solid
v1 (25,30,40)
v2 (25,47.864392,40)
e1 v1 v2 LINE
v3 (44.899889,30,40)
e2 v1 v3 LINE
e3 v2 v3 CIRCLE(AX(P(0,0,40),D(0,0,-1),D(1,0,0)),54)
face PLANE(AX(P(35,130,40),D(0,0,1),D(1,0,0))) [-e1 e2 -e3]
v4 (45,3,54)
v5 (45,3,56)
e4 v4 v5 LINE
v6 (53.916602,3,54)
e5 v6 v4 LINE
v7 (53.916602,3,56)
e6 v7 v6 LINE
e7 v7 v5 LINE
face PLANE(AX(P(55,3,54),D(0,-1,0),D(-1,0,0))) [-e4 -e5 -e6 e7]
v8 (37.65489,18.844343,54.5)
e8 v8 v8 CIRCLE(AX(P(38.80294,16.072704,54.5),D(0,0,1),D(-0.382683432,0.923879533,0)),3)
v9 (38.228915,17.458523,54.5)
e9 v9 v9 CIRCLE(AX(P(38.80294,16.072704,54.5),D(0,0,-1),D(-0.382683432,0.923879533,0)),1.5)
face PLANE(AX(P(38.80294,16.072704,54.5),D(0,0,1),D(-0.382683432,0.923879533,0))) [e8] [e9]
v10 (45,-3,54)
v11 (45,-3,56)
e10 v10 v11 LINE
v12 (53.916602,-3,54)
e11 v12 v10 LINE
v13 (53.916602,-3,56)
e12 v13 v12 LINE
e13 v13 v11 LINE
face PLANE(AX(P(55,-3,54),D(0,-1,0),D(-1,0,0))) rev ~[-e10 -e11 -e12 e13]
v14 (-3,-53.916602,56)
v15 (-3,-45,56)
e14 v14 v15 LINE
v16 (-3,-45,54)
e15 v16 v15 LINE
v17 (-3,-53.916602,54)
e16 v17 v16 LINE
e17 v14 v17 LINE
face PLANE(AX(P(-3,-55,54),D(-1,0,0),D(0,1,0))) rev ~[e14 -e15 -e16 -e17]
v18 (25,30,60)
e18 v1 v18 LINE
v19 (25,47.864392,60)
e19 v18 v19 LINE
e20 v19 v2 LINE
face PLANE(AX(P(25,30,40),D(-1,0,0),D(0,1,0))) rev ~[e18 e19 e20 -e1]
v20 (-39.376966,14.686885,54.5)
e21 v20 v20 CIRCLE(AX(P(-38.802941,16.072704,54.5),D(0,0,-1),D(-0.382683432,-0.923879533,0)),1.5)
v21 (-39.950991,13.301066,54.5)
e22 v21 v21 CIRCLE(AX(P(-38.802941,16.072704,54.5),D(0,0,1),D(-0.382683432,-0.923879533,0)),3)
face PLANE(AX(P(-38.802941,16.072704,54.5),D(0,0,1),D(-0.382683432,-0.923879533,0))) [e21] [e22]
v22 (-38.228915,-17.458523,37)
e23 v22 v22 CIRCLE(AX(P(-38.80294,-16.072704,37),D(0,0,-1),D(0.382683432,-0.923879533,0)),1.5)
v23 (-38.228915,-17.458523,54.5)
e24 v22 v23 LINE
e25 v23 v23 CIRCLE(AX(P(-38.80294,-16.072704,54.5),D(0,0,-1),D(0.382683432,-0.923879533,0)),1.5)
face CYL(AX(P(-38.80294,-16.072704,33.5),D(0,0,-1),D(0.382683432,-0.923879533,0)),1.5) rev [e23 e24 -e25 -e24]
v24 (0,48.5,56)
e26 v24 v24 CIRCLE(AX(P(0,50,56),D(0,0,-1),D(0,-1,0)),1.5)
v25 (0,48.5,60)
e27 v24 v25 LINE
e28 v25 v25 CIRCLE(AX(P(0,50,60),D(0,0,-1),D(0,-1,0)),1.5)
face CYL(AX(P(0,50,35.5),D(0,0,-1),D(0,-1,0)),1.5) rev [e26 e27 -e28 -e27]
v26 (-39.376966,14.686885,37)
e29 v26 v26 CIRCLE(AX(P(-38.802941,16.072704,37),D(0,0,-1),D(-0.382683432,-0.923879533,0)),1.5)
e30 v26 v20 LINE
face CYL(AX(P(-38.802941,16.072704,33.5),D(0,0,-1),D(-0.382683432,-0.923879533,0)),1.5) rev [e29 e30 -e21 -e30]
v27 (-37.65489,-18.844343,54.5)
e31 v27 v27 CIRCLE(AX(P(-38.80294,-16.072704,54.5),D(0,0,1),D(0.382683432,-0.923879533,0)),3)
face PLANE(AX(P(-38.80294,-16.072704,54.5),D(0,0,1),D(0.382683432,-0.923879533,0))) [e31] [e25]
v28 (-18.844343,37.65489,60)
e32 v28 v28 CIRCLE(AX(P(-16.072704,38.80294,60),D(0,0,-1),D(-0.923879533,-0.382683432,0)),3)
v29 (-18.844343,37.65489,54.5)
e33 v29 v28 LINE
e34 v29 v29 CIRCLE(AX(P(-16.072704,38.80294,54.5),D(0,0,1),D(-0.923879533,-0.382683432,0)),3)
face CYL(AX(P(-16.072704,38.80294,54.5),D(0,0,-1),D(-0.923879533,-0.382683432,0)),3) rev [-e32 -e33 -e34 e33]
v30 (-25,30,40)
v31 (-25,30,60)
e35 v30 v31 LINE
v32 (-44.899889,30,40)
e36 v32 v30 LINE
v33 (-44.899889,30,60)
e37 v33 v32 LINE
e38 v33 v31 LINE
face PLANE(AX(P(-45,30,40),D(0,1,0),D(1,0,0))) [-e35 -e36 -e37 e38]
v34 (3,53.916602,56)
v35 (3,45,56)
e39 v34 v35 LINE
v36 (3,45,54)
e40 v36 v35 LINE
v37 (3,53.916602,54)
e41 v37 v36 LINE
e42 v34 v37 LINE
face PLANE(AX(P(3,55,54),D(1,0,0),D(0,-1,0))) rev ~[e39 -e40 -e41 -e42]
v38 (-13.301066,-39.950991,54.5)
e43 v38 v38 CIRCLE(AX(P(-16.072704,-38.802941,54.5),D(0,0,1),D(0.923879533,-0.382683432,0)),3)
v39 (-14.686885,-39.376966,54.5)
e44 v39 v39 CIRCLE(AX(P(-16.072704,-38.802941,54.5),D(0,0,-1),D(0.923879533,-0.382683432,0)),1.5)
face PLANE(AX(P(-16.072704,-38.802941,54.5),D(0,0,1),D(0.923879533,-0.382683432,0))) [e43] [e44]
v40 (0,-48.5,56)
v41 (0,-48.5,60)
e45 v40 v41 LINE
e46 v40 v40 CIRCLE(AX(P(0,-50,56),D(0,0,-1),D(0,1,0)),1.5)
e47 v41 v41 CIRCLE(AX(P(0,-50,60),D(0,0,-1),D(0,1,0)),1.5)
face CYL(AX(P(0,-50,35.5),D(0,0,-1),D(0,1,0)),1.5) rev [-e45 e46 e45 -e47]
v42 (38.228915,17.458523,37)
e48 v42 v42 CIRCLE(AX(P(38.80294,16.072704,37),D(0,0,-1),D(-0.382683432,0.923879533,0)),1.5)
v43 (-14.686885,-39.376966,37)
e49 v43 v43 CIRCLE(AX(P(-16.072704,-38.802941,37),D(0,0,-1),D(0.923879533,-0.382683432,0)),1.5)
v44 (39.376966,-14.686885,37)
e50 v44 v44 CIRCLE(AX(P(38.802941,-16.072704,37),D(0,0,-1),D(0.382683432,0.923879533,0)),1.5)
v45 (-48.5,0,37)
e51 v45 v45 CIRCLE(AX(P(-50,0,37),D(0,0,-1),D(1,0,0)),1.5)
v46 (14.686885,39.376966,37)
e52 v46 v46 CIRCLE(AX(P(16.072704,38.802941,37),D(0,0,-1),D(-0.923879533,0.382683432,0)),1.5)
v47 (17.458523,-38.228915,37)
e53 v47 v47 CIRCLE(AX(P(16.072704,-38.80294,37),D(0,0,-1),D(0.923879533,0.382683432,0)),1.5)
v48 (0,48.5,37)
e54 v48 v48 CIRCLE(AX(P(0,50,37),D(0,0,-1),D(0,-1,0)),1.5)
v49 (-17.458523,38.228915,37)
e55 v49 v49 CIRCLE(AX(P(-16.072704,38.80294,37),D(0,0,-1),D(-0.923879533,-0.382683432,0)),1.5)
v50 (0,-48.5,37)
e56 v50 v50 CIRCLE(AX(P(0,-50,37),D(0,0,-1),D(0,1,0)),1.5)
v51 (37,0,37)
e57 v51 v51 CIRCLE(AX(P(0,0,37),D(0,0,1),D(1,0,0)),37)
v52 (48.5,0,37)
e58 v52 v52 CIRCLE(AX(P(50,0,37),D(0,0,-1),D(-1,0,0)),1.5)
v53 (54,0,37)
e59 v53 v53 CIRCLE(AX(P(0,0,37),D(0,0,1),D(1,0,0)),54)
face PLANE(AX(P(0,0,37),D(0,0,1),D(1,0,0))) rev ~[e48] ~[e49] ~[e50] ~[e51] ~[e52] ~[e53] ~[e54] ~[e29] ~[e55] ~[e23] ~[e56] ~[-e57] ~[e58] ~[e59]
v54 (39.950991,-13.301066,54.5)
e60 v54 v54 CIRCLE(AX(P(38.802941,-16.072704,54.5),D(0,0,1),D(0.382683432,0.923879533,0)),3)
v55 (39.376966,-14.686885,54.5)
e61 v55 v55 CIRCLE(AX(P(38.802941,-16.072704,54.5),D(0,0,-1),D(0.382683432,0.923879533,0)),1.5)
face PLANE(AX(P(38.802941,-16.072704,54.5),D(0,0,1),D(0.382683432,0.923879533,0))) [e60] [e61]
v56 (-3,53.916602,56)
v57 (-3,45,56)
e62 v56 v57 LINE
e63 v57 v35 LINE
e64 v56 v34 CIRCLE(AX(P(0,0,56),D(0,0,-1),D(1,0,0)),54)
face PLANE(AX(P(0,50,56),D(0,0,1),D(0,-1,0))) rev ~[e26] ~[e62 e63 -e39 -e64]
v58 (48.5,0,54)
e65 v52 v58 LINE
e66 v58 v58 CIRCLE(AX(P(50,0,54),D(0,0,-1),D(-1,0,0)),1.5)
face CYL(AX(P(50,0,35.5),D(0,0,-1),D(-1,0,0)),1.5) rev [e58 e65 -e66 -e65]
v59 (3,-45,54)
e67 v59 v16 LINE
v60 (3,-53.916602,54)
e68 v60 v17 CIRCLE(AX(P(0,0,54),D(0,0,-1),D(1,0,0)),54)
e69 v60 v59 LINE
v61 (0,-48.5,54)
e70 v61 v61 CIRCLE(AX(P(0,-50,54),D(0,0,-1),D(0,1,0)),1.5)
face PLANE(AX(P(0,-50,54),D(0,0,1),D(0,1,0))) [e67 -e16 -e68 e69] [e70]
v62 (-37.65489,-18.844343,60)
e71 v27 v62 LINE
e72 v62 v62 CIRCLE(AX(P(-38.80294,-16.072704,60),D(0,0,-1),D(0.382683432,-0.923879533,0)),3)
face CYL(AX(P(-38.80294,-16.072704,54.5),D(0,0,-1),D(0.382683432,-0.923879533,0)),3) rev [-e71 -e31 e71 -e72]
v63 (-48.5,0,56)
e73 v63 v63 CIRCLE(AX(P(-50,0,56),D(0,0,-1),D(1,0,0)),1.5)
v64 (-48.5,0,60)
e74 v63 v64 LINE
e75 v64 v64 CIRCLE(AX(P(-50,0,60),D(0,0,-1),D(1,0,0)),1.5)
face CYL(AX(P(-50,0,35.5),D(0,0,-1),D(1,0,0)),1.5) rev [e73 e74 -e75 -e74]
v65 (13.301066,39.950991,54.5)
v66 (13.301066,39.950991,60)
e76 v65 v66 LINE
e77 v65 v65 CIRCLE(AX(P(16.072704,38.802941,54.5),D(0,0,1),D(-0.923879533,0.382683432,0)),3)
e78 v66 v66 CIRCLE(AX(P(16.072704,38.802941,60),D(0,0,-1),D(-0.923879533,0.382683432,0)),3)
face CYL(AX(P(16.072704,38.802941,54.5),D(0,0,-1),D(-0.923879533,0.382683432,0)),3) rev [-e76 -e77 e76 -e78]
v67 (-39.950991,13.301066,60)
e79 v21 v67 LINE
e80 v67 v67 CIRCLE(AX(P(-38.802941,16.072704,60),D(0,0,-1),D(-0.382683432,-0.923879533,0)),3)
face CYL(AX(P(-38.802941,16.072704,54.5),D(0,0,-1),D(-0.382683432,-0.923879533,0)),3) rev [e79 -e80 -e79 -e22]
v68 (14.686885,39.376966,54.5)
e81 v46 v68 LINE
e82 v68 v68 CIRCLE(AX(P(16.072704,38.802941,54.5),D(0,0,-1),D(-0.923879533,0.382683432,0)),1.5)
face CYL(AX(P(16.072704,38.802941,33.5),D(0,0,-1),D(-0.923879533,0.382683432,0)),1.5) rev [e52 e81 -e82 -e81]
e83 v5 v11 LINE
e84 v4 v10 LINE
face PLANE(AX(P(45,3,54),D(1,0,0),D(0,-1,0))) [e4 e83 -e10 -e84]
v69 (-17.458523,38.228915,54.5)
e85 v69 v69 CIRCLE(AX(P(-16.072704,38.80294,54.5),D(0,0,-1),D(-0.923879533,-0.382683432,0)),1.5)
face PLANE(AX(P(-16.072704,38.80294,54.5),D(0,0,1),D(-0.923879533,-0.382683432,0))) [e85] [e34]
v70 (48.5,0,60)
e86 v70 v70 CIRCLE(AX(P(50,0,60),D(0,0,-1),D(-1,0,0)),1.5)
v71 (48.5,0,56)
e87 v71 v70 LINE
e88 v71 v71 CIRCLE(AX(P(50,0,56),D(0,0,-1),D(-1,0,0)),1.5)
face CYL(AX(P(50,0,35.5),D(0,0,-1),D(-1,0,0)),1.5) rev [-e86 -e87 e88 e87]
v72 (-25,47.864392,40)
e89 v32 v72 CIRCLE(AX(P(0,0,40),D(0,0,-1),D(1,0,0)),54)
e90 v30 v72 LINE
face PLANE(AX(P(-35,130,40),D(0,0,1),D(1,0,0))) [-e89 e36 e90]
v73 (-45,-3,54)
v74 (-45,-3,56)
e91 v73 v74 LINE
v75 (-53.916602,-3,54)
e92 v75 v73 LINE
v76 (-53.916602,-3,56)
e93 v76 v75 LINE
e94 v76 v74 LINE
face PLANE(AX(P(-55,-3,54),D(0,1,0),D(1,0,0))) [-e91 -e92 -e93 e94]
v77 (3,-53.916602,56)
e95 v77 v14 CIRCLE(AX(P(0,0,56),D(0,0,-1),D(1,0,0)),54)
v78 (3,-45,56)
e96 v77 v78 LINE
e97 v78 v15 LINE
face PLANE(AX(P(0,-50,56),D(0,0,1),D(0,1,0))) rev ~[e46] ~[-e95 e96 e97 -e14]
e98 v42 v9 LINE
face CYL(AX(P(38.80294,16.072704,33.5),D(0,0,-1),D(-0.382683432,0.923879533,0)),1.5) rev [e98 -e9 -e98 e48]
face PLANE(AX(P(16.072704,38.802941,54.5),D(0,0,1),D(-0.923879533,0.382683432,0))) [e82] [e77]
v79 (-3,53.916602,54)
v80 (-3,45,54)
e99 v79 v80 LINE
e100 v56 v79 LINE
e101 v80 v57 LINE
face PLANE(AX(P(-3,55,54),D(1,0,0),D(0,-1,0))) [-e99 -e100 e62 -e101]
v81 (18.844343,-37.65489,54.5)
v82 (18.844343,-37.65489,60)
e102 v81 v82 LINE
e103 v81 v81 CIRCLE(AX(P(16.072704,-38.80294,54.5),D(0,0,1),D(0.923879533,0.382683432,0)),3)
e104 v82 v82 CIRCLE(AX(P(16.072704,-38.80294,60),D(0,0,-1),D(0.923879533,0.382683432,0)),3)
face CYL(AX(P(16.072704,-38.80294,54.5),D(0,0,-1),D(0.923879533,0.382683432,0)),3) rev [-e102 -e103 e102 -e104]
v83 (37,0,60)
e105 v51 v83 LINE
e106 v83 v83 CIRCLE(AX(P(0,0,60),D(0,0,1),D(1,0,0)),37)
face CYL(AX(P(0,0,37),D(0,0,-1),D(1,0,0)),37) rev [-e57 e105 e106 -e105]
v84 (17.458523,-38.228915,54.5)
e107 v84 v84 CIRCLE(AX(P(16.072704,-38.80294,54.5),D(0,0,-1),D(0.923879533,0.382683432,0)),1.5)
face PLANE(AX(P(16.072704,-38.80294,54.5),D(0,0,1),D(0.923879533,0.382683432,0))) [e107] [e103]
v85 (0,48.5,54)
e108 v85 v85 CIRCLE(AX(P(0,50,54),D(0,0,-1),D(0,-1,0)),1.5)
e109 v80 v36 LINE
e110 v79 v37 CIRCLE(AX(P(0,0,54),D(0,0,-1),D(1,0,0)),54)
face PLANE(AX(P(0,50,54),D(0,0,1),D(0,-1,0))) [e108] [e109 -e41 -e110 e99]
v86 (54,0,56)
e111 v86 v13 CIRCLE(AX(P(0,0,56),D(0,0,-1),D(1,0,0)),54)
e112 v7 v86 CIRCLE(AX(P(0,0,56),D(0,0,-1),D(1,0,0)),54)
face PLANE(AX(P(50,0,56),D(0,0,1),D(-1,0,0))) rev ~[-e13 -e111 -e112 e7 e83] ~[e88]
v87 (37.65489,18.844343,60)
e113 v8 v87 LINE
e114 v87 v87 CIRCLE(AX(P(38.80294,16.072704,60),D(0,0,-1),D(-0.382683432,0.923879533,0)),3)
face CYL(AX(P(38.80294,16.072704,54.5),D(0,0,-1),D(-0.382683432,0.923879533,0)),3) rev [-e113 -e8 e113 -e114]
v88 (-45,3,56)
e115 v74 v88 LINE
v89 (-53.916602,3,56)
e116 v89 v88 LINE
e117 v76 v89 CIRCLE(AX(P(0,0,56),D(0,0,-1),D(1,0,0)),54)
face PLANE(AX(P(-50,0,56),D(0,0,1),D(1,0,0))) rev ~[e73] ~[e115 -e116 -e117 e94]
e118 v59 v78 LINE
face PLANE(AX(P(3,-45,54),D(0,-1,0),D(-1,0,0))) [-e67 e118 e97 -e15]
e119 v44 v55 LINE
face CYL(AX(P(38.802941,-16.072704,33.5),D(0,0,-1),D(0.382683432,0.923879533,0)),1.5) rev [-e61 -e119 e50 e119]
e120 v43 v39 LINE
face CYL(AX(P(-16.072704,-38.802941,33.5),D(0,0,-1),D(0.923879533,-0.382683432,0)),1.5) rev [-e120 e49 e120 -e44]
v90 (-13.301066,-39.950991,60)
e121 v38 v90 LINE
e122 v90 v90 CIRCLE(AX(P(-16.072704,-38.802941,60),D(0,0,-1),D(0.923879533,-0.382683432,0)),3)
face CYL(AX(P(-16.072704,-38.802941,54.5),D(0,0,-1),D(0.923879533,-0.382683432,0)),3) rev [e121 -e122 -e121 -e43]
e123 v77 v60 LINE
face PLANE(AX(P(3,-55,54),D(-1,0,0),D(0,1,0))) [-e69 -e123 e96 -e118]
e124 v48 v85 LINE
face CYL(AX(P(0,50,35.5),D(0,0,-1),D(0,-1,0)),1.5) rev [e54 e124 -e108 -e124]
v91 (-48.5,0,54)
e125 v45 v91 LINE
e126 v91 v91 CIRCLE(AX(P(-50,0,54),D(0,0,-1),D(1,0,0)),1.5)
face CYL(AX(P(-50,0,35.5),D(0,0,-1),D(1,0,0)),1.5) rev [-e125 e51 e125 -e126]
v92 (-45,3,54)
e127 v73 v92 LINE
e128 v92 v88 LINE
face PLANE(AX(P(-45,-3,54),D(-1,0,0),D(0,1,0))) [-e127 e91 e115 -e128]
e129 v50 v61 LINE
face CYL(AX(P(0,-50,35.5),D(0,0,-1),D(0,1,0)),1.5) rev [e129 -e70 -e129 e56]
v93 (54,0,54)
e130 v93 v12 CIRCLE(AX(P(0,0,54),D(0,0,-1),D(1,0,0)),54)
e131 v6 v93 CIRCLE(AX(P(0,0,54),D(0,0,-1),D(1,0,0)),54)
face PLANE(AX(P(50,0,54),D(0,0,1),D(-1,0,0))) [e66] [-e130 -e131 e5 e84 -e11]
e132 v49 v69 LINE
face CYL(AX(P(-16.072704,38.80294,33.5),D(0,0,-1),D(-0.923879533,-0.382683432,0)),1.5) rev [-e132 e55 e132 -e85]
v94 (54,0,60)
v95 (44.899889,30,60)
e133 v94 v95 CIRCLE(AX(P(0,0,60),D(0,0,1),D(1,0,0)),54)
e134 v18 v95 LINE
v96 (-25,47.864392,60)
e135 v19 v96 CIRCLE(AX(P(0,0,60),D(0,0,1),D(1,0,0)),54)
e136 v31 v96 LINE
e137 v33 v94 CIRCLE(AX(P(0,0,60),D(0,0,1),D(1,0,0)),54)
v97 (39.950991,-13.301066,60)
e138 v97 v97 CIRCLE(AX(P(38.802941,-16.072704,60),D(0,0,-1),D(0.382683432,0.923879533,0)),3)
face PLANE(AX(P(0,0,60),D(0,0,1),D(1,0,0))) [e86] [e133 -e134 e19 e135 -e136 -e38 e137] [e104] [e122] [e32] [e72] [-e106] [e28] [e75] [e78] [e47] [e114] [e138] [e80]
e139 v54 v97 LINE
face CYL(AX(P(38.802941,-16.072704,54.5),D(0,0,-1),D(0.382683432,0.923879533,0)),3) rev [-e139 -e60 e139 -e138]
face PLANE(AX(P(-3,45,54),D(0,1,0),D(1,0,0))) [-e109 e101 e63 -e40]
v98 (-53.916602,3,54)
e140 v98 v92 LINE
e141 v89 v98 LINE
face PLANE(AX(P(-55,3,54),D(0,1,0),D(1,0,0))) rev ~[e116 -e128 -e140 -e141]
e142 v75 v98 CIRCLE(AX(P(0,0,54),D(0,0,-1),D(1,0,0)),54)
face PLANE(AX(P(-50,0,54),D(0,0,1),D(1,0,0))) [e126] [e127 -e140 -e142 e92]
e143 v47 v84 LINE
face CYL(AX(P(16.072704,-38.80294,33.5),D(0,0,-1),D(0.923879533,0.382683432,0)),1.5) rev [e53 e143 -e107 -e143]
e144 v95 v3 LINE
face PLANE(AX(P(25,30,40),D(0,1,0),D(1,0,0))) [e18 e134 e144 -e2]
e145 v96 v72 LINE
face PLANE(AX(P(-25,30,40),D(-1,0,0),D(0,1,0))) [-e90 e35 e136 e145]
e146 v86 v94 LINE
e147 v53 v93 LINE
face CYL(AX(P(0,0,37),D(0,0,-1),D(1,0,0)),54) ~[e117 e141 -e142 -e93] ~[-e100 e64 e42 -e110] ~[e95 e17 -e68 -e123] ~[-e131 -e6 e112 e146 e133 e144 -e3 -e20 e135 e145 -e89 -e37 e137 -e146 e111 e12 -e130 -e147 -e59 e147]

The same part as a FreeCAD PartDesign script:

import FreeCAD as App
import Part
import Sketcher

V = App.Vector
Q = App.Units.Quantity

doc = App.newDocument("Part")
body = doc.addObject("PartDesign::Body", "Body")

# Sketch on XY plane
sketch1 = doc.addObject("Sketcher::SketchObject", "Sketch")
body.addObject(sketch1)
sketch1.AttachmentSupport = (doc.XY_Plane, [""])
sketch1.MapMode = "FlatFace"
sketch1.AttachmentOffset = App.Placement(V(0, 0, 54), App.Rotation())
sketch1.addGeometry(Part.LineSegment(V(55, -3, 0), V(55, 3, 0)), False)
sketch1.addGeometry(Part.LineSegment(V(55, 3, 0), V(45, 3, 0)), False)
sketch1.addGeometry(Part.LineSegment(V(45, 3, 0), V(45, -3, 0)), False)
sketch1.addGeometry(Part.LineSegment(V(45, -3, 0), V(55, -3, 0)), False)
sketch1.addConstraint(Sketcher.Constraint("Coincident", 0, 2, 1, 1))
sketch1.addConstraint(Sketcher.Constraint("Coincident", 1, 2, 2, 1))
sketch1.addConstraint(Sketcher.Constraint("Coincident", 2, 2, 3, 1))
sketch1.addConstraint(Sketcher.Constraint("Coincident", 3, 2, 0, 1))
sketch1.addConstraint(Sketcher.Constraint("Vertical", 0))
sketch1.addConstraint(Sketcher.Constraint("Horizontal", 1))
sketch1.addConstraint(Sketcher.Constraint("Vertical", 2))
sketch1.addConstraint(Sketcher.Constraint("Horizontal", 3))
sketch1.addConstraint(Sketcher.Constraint("DistanceX", 1, 2, 1, 1, Q("10 mm")))
sketch1.addConstraint(Sketcher.Constraint("DistanceY", 0, 1, 0, 2, Q("6 mm")))
sketch1.addConstraint(Sketcher.Constraint("DistanceX", -1, 1, 0, 2, Q("55 mm")))
sketch1.addConstraint(Sketcher.Constraint("DistanceY", -1, 1, 0, 2, Q("3 mm")))
pad1 = doc.addObject("PartDesign::Pad", "Pad")
body.addObject(pad1)
pad1.Profile = sketch1
pad1.Length = 2
body2 = doc.addObject("PartDesign::Body", "Body001")

# Sketch on XY plane
sketch2 = doc.addObject("Sketcher::SketchObject", "Sketch001")
body2.addObject(sketch2)
sketch2.AttachmentSupport = (doc.getObject("XY_Plane001"), [""])
sketch2.MapMode = "FlatFace"
sketch2.AttachmentOffset = App.Placement(V(0, 0, 54), App.Rotation())
sketch2.addGeometry(Part.LineSegment(V(-3, -55, 0), V(3, -55, 0)), False)
sketch2.addGeometry(Part.LineSegment(V(3, -55, 0), V(3, -45, 0)), False)
sketch2.addGeometry(Part.LineSegment(V(3, -45, 0), V(-3, -45, 0)), False)
sketch2.addGeometry(Part.LineSegment(V(-3, -45, 0), V(-3, -55, 0)), False)
sketch2.addConstraint(Sketcher.Constraint("Coincident", 0, 2, 1, 1))
sketch2.addConstraint(Sketcher.Constraint("Coincident", 1, 2, 2, 1))
sketch2.addConstraint(Sketcher.Constraint("Coincident", 2, 2, 3, 1))
sketch2.addConstraint(Sketcher.Constraint("Coincident", 3, 2, 0, 1))
sketch2.addConstraint(Sketcher.Constraint("Horizontal", 0))
sketch2.addConstraint(Sketcher.Constraint("Vertical", 1))
sketch2.addConstraint(Sketcher.Constraint("Horizontal", 2))
sketch2.addConstraint(Sketcher.Constraint("Vertical", 3))
sketch2.addConstraint(Sketcher.Constraint("DistanceX", 0, 1, 0, 2, Q("6 mm")))
sketch2.addConstraint(Sketcher.Constraint("DistanceY", 1, 1, 1, 2, Q("10 mm")))
sketch2.addConstraint(Sketcher.Constraint("DistanceX", -1, 1, 0, 2, Q("3 mm")))
sketch2.addConstraint(Sketcher.Constraint("DistanceY", 0, 2, -1, 1, Q("55 mm")))
pad2 = doc.addObject("PartDesign::Pad", "Pad001")
body2.addObject(pad2)
pad2.Profile = sketch2
pad2.Length = 2
body3 = doc.addObject("PartDesign::Body", "Body002")

# Sketch on XY plane
sketch3 = doc.addObject("Sketcher::SketchObject", "Sketch002")
body3.addObject(sketch3)
sketch3.AttachmentSupport = (doc.getObject("XY_Plane002"), [""])
sketch3.MapMode = "FlatFace"
sketch3.AttachmentOffset = App.Placement(V(0, 0, 54), App.Rotation())
sketch3.addGeometry(Part.LineSegment(V(-55, 3, 0), V(-55, -3, 0)), False)
sketch3.addGeometry(Part.LineSegment(V(-55, -3, 0), V(-45, -3, 0)), False)
sketch3.addGeometry(Part.LineSegment(V(-45, -3, 0), V(-45, 3, 0)), False)
sketch3.addGeometry(Part.LineSegment(V(-45, 3, 0), V(-55, 3, 0)), False)
sketch3.addConstraint(Sketcher.Constraint("Coincident", 0, 2, 1, 1))
sketch3.addConstraint(Sketcher.Constraint("Coincident", 1, 2, 2, 1))
sketch3.addConstraint(Sketcher.Constraint("Coincident", 2, 2, 3, 1))
sketch3.addConstraint(Sketcher.Constraint("Coincident", 3, 2, 0, 1))
sketch3.addConstraint(Sketcher.Constraint("Vertical", 0))
sketch3.addConstraint(Sketcher.Constraint("Horizontal", 1))
sketch3.addConstraint(Sketcher.Constraint("Vertical", 2))
sketch3.addConstraint(Sketcher.Constraint("Horizontal", 3))
sketch3.addConstraint(Sketcher.Constraint("DistanceX", 1, 1, 1, 2, Q("10 mm")))
sketch3.addConstraint(Sketcher.Constraint("DistanceY", 0, 2, 0, 1, Q("6 mm")))
sketch3.addConstraint(Sketcher.Constraint("DistanceX", 0, 2, -1, 1, Q("55 mm")))
sketch3.addConstraint(Sketcher.Constraint("DistanceY", 0, 2, -1, 1, Q("3 mm")))
pad3 = doc.addObject("PartDesign::Pad", "Pad002")
body3.addObject(pad3)
pad3.Profile = sketch3
pad3.Length = 2
body4 = doc.addObject("PartDesign::Body", "Body003")
body4.AllowCompound = True

# Sketch on XY plane
sketch4 = doc.addObject("Sketcher::SketchObject", "Sketch003")
body4.addObject(sketch4)
sketch4.AttachmentSupport = (doc.getObject("XY_Plane003"), [""])
sketch4.MapMode = "FlatFace"
sketch4.AttachmentOffset = App.Placement(V(0, 0, 54), App.Rotation())
sketch4.addGeometry(Part.LineSegment(V(3, 55, 0), V(-3, 55, 0)), False)
sketch4.addGeometry(Part.LineSegment(V(-3, 55, 0), V(-3, 45, 0)), False)
sketch4.addGeometry(Part.LineSegment(V(-3, 45, 0), V(3, 45, 0)), False)
sketch4.addGeometry(Part.LineSegment(V(3, 45, 0), V(3, 55, 0)), False)
sketch4.addConstraint(Sketcher.Constraint("Coincident", 0, 2, 1, 1))
sketch4.addConstraint(Sketcher.Constraint("Coincident", 1, 2, 2, 1))
sketch4.addConstraint(Sketcher.Constraint("Coincident", 2, 2, 3, 1))
sketch4.addConstraint(Sketcher.Constraint("Coincident", 3, 2, 0, 1))
sketch4.addConstraint(Sketcher.Constraint("Horizontal", 0))
sketch4.addConstraint(Sketcher.Constraint("Vertical", 1))
sketch4.addConstraint(Sketcher.Constraint("Horizontal", 2))
sketch4.addConstraint(Sketcher.Constraint("Vertical", 3))
sketch4.addConstraint(Sketcher.Constraint("DistanceX", 0, 2, 0, 1, Q("6 mm")))
sketch4.addConstraint(Sketcher.Constraint("DistanceY", 1, 2, 1, 1, Q("10 mm")))
sketch4.addConstraint(Sketcher.Constraint("DistanceX", 0, 2, -1, 1, Q("3 mm")))
sketch4.addConstraint(Sketcher.Constraint("DistanceY", -1, 1, 0, 2, Q("55 mm")))
pad4 = doc.addObject("PartDesign::Pad", "Pad003")
body4.addObject(pad4)
pad4.Profile = sketch4
pad4.Length = 2
doc.recompute()

boolean = doc.addObject("PartDesign::Boolean", "Boolean")
body4.addObject(boolean)
boolean.Type = "Fuse"
boolean.addObjects([body])
doc.recompute()

boolean2 = doc.addObject("PartDesign::Boolean", "Boolean001")
body4.addObject(boolean2)
boolean2.Type = "Fuse"
boolean2.addObjects([body2])
doc.recompute()

boolean3 = doc.addObject("PartDesign::Boolean", "Boolean002")
body4.addObject(boolean3)
boolean3.Type = "Fuse"
boolean3.addObjects([body3])
body5 = doc.addObject("PartDesign::Body", "Body004")

# Sketch on XY plane
sketch5 = doc.addObject("Sketcher::SketchObject", "Sketch004")
body5.addObject(sketch5)
sketch5.AttachmentSupport = (doc.getObject("XY_Plane004"), [""])
sketch5.MapMode = "FlatFace"
sketch5.AttachmentOffset = App.Placement(V(0, 0, 35.5), App.Rotation())
sketch5.addGeometry(Part.Circle(V(50, 0, 0), V(0, 0, 1), 1.5), False)
sketch5.addConstraint(Sketcher.Constraint("PointOnObject", 0, 3, -1))
sketch5.addConstraint(Sketcher.Constraint("Diameter", 0, Q("3 mm")))
sketch5.addConstraint(Sketcher.Constraint("DistanceX", -1, 1, 0, 3, Q("50 mm")))
pad5 = doc.addObject("PartDesign::Pad", "Pad004")
body5.addObject(pad5)
pad5.Profile = sketch5
pad5.Length = 30
body6 = doc.addObject("PartDesign::Body", "Body005")

# Sketch on XY plane
sketch6 = doc.addObject("Sketcher::SketchObject", "Sketch005")
body6.addObject(sketch6)
sketch6.AttachmentSupport = (doc.getObject("XY_Plane005"), [""])
sketch6.MapMode = "FlatFace"
sketch6.AttachmentOffset = App.Placement(V(0, 0, 35.5), App.Rotation())
sketch6.addGeometry(Part.Circle(V(0, -50, 0), V(0, 0, 1), 1.5), False)
sketch6.addConstraint(Sketcher.Constraint("PointOnObject", 0, 3, -2))
sketch6.addConstraint(Sketcher.Constraint("Diameter", 0, Q("3 mm")))
sketch6.addConstraint(Sketcher.Constraint("DistanceY", 0, 3, -1, 1, Q("50 mm")))
pad6 = doc.addObject("PartDesign::Pad", "Pad005")
body6.addObject(pad6)
pad6.Profile = sketch6
pad6.Length = 30
body7 = doc.addObject("PartDesign::Body", "Body006")

# Sketch on XY plane
sketch7 = doc.addObject("Sketcher::SketchObject", "Sketch006")
body7.addObject(sketch7)
sketch7.AttachmentSupport = (doc.getObject("XY_Plane006"), [""])
sketch7.MapMode = "FlatFace"
sketch7.AttachmentOffset = App.Placement(V(0, 0, 35.5), App.Rotation())
sketch7.addGeometry(Part.Circle(V(-50, 0, 0), V(0, 0, 1), 1.5), False)
sketch7.addConstraint(Sketcher.Constraint("PointOnObject", 0, 3, -1))
sketch7.addConstraint(Sketcher.Constraint("Diameter", 0, Q("3 mm")))
sketch7.addConstraint(Sketcher.Constraint("DistanceX", 0, 3, -1, 1, Q("50 mm")))
pad7 = doc.addObject("PartDesign::Pad", "Pad006")
body7.addObject(pad7)
pad7.Profile = sketch7
pad7.Length = 30
body8 = doc.addObject("PartDesign::Body", "Body007")
body8.AllowCompound = True

# Sketch on XY plane
sketch8 = doc.addObject("Sketcher::SketchObject", "Sketch007")
body8.addObject(sketch8)
sketch8.AttachmentSupport = (doc.getObject("XY_Plane007"), [""])
sketch8.MapMode = "FlatFace"
sketch8.AttachmentOffset = App.Placement(V(0, 0, 35.5), App.Rotation())
sketch8.addGeometry(Part.Circle(V(0, 50, 0), V(0, 0, 1), 1.5), False)
sketch8.addConstraint(Sketcher.Constraint("PointOnObject", 0, 3, -2))
sketch8.addConstraint(Sketcher.Constraint("Diameter", 0, Q("3 mm")))
sketch8.addConstraint(Sketcher.Constraint("DistanceY", -1, 1, 0, 3, Q("50 mm")))
pad8 = doc.addObject("PartDesign::Pad", "Pad007")
body8.addObject(pad8)
pad8.Profile = sketch8
pad8.Length = 30
doc.recompute()

boolean4 = doc.addObject("PartDesign::Boolean", "Boolean003")
body8.addObject(boolean4)
boolean4.Type = "Fuse"
boolean4.addObjects([body5])
doc.recompute()

boolean5 = doc.addObject("PartDesign::Boolean", "Boolean004")
body8.addObject(boolean5)
boolean5.Type = "Fuse"
boolean5.addObjects([body6])
doc.recompute()

boolean6 = doc.addObject("PartDesign::Boolean", "Boolean005")
body8.addObject(boolean6)
boolean6.Type = "Fuse"
boolean6.addObjects([body7])
body9 = doc.addObject("PartDesign::Body", "Body008")

# Sketch on XY plane
sketch9 = doc.addObject("Sketcher::SketchObject", "Sketch008")
body9.addObject(sketch9)
sketch9.AttachmentSupport = (doc.getObject("XY_Plane008"), [""])
sketch9.MapMode = "FlatFace"
sketch9.addGeometry(Part.Circle(V(0, 0, 0), V(0, 0, 1), 3), False)
sketch9.addConstraint(Sketcher.Constraint("Coincident", 0, 3, -1, 1))
sketch9.addConstraint(Sketcher.Constraint("Diameter", 0, Q("6 mm")))
pad9 = doc.addObject("PartDesign::Pad", "Pad008")
body9.addObject(pad9)
pad9.Profile = sketch9
pad9.Length = 6
body10 = doc.addObject("PartDesign::Body", "Body009")
doc.recompute()

body9.Placement = App.Placement(V(29.698485, -29.698485, 33.5), App.Rotation(V(0, 0, 1), 45))
boolean7 = doc.addObject("PartDesign::Boolean", "Boolean006")
body10.addObject(boolean7)
boolean7.Type = "Fuse"
boolean7.addObjects([body9])
body11 = doc.addObject("PartDesign::Body", "Body010")

# Sketch on XY plane
sketch10 = doc.addObject("Sketcher::SketchObject", "Sketch009")
body11.addObject(sketch10)
sketch10.AttachmentSupport = (doc.getObject("XY_Plane010"), [""])
sketch10.MapMode = "FlatFace"
sketch10.AttachmentOffset = App.Placement(V(0, 0, 33.5), App.Rotation())
sketch10.addGeometry(Part.Circle(V(42, 0, 0), V(0, 0, 1), 3), False)
sketch10.addConstraint(Sketcher.Constraint("PointOnObject", 0, 3, -1))
sketch10.addConstraint(Sketcher.Constraint("Diameter", 0, Q("6 mm")))
sketch10.addConstraint(Sketcher.Constraint("DistanceX", -1, 1, 0, 3, Q("42 mm")))
pad10 = doc.addObject("PartDesign::Pad", "Pad009")
body11.addObject(pad10)
pad10.Profile = sketch10
pad10.Length = 6
body12 = doc.addObject("PartDesign::Body", "Body011")

# Sketch on XY plane
sketch11 = doc.addObject("Sketcher::SketchObject", "Sketch010")
body12.addObject(sketch11)
sketch11.AttachmentSupport = (doc.getObject("XY_Plane011"), [""])
sketch11.MapMode = "FlatFace"
sketch11.addGeometry(Part.Circle(V(0, 0, 0), V(0, 0, 1), 3), False)
sketch11.addConstraint(Sketcher.Constraint("Coincident", 0, 3, -1, 1))
sketch11.addConstraint(Sketcher.Constraint("Diameter", 0, Q("6 mm")))
pad11 = doc.addObject("PartDesign::Pad", "Pad010")
body12.addObject(pad11)
pad11.Profile = sketch11
pad11.Length = 6
body13 = doc.addObject("PartDesign::Body", "Body012")
doc.recompute()

body12.Placement = App.Placement(V(29.698485, 29.698485, 33.5), App.Rotation(V(0, 0, 1), 135))
boolean8 = doc.addObject("PartDesign::Boolean", "Boolean007")
body13.addObject(boolean8)
boolean8.Type = "Fuse"
boolean8.addObjects([body12])
body14 = doc.addObject("PartDesign::Body", "Body013")

# Sketch on XY plane
sketch12 = doc.addObject("Sketcher::SketchObject", "Sketch011")
body14.addObject(sketch12)
sketch12.AttachmentSupport = (doc.getObject("XY_Plane013"), [""])
sketch12.MapMode = "FlatFace"
sketch12.AttachmentOffset = App.Placement(V(0, 0, 33.5), App.Rotation())
sketch12.addGeometry(Part.Circle(V(0, 42, 0), V(0, 0, 1), 3), False)
sketch12.addConstraint(Sketcher.Constraint("PointOnObject", 0, 3, -2))
sketch12.addConstraint(Sketcher.Constraint("Diameter", 0, Q("6 mm")))
sketch12.addConstraint(Sketcher.Constraint("DistanceY", -1, 1, 0, 3, Q("42 mm")))
pad12 = doc.addObject("PartDesign::Pad", "Pad011")
body14.addObject(pad12)
pad12.Profile = sketch12
pad12.Length = 6
body15 = doc.addObject("PartDesign::Body", "Body014")

# Sketch on XY plane
sketch13 = doc.addObject("Sketcher::SketchObject", "Sketch012")
body15.addObject(sketch13)
sketch13.AttachmentSupport = (doc.getObject("XY_Plane014"), [""])
sketch13.MapMode = "FlatFace"
sketch13.addGeometry(Part.Circle(V(0, 0, 0), V(0, 0, 1), 3), False)
sketch13.addConstraint(Sketcher.Constraint("Coincident", 0, 3, -1, 1))
sketch13.addConstraint(Sketcher.Constraint("Diameter", 0, Q("6 mm")))
pad13 = doc.addObject("PartDesign::Pad", "Pad012")
body15.addObject(pad13)
pad13.Profile = sketch13
pad13.Length = 6
body16 = doc.addObject("PartDesign::Body", "Body015")
doc.recompute()

body15.Placement = App.Placement(V(-29.698485, 29.698485, 33.5), App.Rotation(V(0, 0, 1), 225))
boolean9 = doc.addObject("PartDesign::Boolean", "Boolean008")
body16.addObject(boolean9)
boolean9.Type = "Fuse"
boolean9.addObjects([body15])
body17 = doc.addObject("PartDesign::Body", "Body016")

# Sketch on XY plane
sketch14 = doc.addObject("Sketcher::SketchObject", "Sketch013")
body17.addObject(sketch14)
sketch14.AttachmentSupport = (doc.getObject("XY_Plane016"), [""])
sketch14.MapMode = "FlatFace"
sketch14.AttachmentOffset = App.Placement(V(0, 0, 33.5), App.Rotation())
sketch14.addGeometry(Part.Circle(V(-42, 0, 0), V(0, 0, 1), 3), False)
sketch14.addConstraint(Sketcher.Constraint("PointOnObject", 0, 3, -1))
sketch14.addConstraint(Sketcher.Constraint("Diameter", 0, Q("6 mm")))
sketch14.addConstraint(Sketcher.Constraint("DistanceX", 0, 3, -1, 1, Q("42 mm")))
pad14 = doc.addObject("PartDesign::Pad", "Pad013")
body17.addObject(pad14)
pad14.Profile = sketch14
pad14.Length = 6
body18 = doc.addObject("PartDesign::Body", "Body017")

# Sketch on XY plane
sketch15 = doc.addObject("Sketcher::SketchObject", "Sketch014")
body18.addObject(sketch15)
sketch15.AttachmentSupport = (doc.getObject("XY_Plane017"), [""])
sketch15.MapMode = "FlatFace"
sketch15.addGeometry(Part.Circle(V(0, 0, 0), V(0, 0, 1), 3), False)
sketch15.addConstraint(Sketcher.Constraint("Coincident", 0, 3, -1, 1))
sketch15.addConstraint(Sketcher.Constraint("Diameter", 0, Q("6 mm")))
pad15 = doc.addObject("PartDesign::Pad", "Pad014")
body18.addObject(pad15)
pad15.Profile = sketch15
pad15.Length = 6
body19 = doc.addObject("PartDesign::Body", "Body018")
doc.recompute()

body18.Placement = App.Placement(V(-29.698485, -29.698485, 33.5), App.Rotation(V(0, 0, -1), 45))
boolean10 = doc.addObject("PartDesign::Boolean", "Boolean009")
body19.addObject(boolean10)
boolean10.Type = "Fuse"
boolean10.addObjects([body18])
body20 = doc.addObject("PartDesign::Body", "Body019")
body20.AllowCompound = True

# Sketch on XY plane
sketch16 = doc.addObject("Sketcher::SketchObject", "Sketch015")
body20.addObject(sketch16)
sketch16.AttachmentSupport = (doc.getObject("XY_Plane019"), [""])
sketch16.MapMode = "FlatFace"
sketch16.AttachmentOffset = App.Placement(V(0, 0, 33.5), App.Rotation())
sketch16.addGeometry(Part.Circle(V(0, -42, 0), V(0, 0, 1), 3), False)
sketch16.addConstraint(Sketcher.Constraint("PointOnObject", 0, 3, -2))
sketch16.addConstraint(Sketcher.Constraint("Diameter", 0, Q("6 mm")))
sketch16.addConstraint(Sketcher.Constraint("DistanceY", 0, 3, -1, 1, Q("42 mm")))
pad16 = doc.addObject("PartDesign::Pad", "Pad015")
body20.addObject(pad16)
pad16.Profile = sketch16
pad16.Length = 6
doc.recompute()

boolean11 = doc.addObject("PartDesign::Boolean", "Boolean010")
body20.addObject(boolean11)
boolean11.Type = "Fuse"
boolean11.addObjects([body10])
doc.recompute()

boolean12 = doc.addObject("PartDesign::Boolean", "Boolean011")
body20.addObject(boolean12)
boolean12.Type = "Fuse"
boolean12.addObjects([body11])
doc.recompute()

boolean13 = doc.addObject("PartDesign::Boolean", "Boolean012")
body20.addObject(boolean13)
boolean13.Type = "Fuse"
boolean13.addObjects([body13])
doc.recompute()

boolean14 = doc.addObject("PartDesign::Boolean", "Boolean013")
body20.addObject(boolean14)
boolean14.Type = "Fuse"
boolean14.addObjects([body14])
doc.recompute()

boolean15 = doc.addObject("PartDesign::Boolean", "Boolean014")
body20.addObject(boolean15)
boolean15.Type = "Fuse"
boolean15.addObjects([body16])
doc.recompute()

boolean16 = doc.addObject("PartDesign::Boolean", "Boolean015")
body20.addObject(boolean16)
boolean16.Type = "Fuse"
boolean16.addObjects([body17])
doc.recompute()

boolean17 = doc.addObject("PartDesign::Boolean", "Boolean016")
body20.addObject(boolean17)
boolean17.Type = "Fuse"
boolean17.addObjects([body19])
body21 = doc.addObject("PartDesign::Body", "Body020")
body21.AllowCompound = True
doc.recompute()

body20.Placement = App.Placement(V(0, 0, 21), App.Rotation(V(0, 0, 1), 22.5))
boolean18 = doc.addObject("PartDesign::Boolean", "Boolean017")
body21.addObject(boolean18)
boolean18.Type = "Fuse"
boolean18.addObjects([body20])
body22 = doc.addObject("PartDesign::Body", "Body021")

# Sketch on XY plane
sketch17 = doc.addObject("Sketcher::SketchObject", "Sketch016")
body22.addObject(sketch17)
sketch17.AttachmentSupport = (doc.getObject("XY_Plane021"), [""])
sketch17.MapMode = "FlatFace"
sketch17.addGeometry(Part.Circle(V(0, 0, 0), V(0, 0, 1), 1.5), False)
sketch17.addConstraint(Sketcher.Constraint("Coincident", 0, 3, -1, 1))
sketch17.addConstraint(Sketcher.Constraint("Diameter", 0, Q("3 mm")))
pad17 = doc.addObject("PartDesign::Pad", "Pad016")
body22.addObject(pad17)
pad17.Profile = sketch17
pad17.Length = 40
body23 = doc.addObject("PartDesign::Body", "Body022")
doc.recompute()

body22.Placement = App.Placement(V(29.698485, -29.698485, 33.5), App.Rotation(V(0, 0, 1), 45))
boolean19 = doc.addObject("PartDesign::Boolean", "Boolean018")
body23.addObject(boolean19)
boolean19.Type = "Fuse"
boolean19.addObjects([body22])
body24 = doc.addObject("PartDesign::Body", "Body023")

# Sketch on XY plane
sketch18 = doc.addObject("Sketcher::SketchObject", "Sketch017")
body24.addObject(sketch18)
sketch18.AttachmentSupport = (doc.getObject("XY_Plane023"), [""])
sketch18.MapMode = "FlatFace"
sketch18.AttachmentOffset = App.Placement(V(0, 0, 33.5), App.Rotation())
sketch18.addGeometry(Part.Circle(V(42, 0, 0), V(0, 0, 1), 1.5), False)
sketch18.addConstraint(Sketcher.Constraint("PointOnObject", 0, 3, -1))
sketch18.addConstraint(Sketcher.Constraint("Diameter", 0, Q("3 mm")))
sketch18.addConstraint(Sketcher.Constraint("DistanceX", -1, 1, 0, 3, Q("42 mm")))
pad18 = doc.addObject("PartDesign::Pad", "Pad017")
body24.addObject(pad18)
pad18.Profile = sketch18
pad18.Length = 40
body25 = doc.addObject("PartDesign::Body", "Body024")

# Sketch on XY plane
sketch19 = doc.addObject("Sketcher::SketchObject", "Sketch018")
body25.addObject(sketch19)
sketch19.AttachmentSupport = (doc.getObject("XY_Plane024"), [""])
sketch19.MapMode = "FlatFace"
sketch19.addGeometry(Part.Circle(V(0, 0, 0), V(0, 0, 1), 1.5), False)
sketch19.addConstraint(Sketcher.Constraint("Coincident", 0, 3, -1, 1))
sketch19.addConstraint(Sketcher.Constraint("Diameter", 0, Q("3 mm")))
pad19 = doc.addObject("PartDesign::Pad", "Pad018")
body25.addObject(pad19)
pad19.Profile = sketch19
pad19.Length = 40
body26 = doc.addObject("PartDesign::Body", "Body025")
doc.recompute()

body25.Placement = App.Placement(V(29.698485, 29.698485, 33.5), App.Rotation(V(0, 0, 1), 135))
boolean20 = doc.addObject("PartDesign::Boolean", "Boolean019")
body26.addObject(boolean20)
boolean20.Type = "Fuse"
boolean20.addObjects([body25])
body27 = doc.addObject("PartDesign::Body", "Body026")

# Sketch on XY plane
sketch20 = doc.addObject("Sketcher::SketchObject", "Sketch019")
body27.addObject(sketch20)
sketch20.AttachmentSupport = (doc.getObject("XY_Plane026"), [""])
sketch20.MapMode = "FlatFace"
sketch20.AttachmentOffset = App.Placement(V(0, 0, 33.5), App.Rotation())
sketch20.addGeometry(Part.Circle(V(0, 42, 0), V(0, 0, 1), 1.5), False)
sketch20.addConstraint(Sketcher.Constraint("PointOnObject", 0, 3, -2))
sketch20.addConstraint(Sketcher.Constraint("Diameter", 0, Q("3 mm")))
sketch20.addConstraint(Sketcher.Constraint("DistanceY", -1, 1, 0, 3, Q("42 mm")))
pad20 = doc.addObject("PartDesign::Pad", "Pad019")
body27.addObject(pad20)
pad20.Profile = sketch20
pad20.Length = 40
body28 = doc.addObject("PartDesign::Body", "Body027")

# Sketch on XY plane
sketch21 = doc.addObject("Sketcher::SketchObject", "Sketch020")
body28.addObject(sketch21)
sketch21.AttachmentSupport = (doc.getObject("XY_Plane027"), [""])
sketch21.MapMode = "FlatFace"
sketch21.addGeometry(Part.Circle(V(0, 0, 0), V(0, 0, 1), 1.5), False)
sketch21.addConstraint(Sketcher.Constraint("Coincident", 0, 3, -1, 1))
sketch21.addConstraint(Sketcher.Constraint("Diameter", 0, Q("3 mm")))
pad21 = doc.addObject("PartDesign::Pad", "Pad020")
body28.addObject(pad21)
pad21.Profile = sketch21
pad21.Length = 40
body29 = doc.addObject("PartDesign::Body", "Body028")
doc.recompute()

body28.Placement = App.Placement(V(-29.698485, 29.698485, 33.5), App.Rotation(V(0, 0, 1), 225))
boolean21 = doc.addObject("PartDesign::Boolean", "Boolean020")
body29.addObject(boolean21)
boolean21.Type = "Fuse"
boolean21.addObjects([body28])
body30 = doc.addObject("PartDesign::Body", "Body029")

# Sketch on XY plane
sketch22 = doc.addObject("Sketcher::SketchObject", "Sketch021")
body30.addObject(sketch22)
sketch22.AttachmentSupport = (doc.getObject("XY_Plane029"), [""])
sketch22.MapMode = "FlatFace"
sketch22.AttachmentOffset = App.Placement(V(0, 0, 33.5), App.Rotation())
sketch22.addGeometry(Part.Circle(V(-42, 0, 0), V(0, 0, 1), 1.5), False)
sketch22.addConstraint(Sketcher.Constraint("PointOnObject", 0, 3, -1))
sketch22.addConstraint(Sketcher.Constraint("Diameter", 0, Q("3 mm")))
sketch22.addConstraint(Sketcher.Constraint("DistanceX", 0, 3, -1, 1, Q("42 mm")))
pad22 = doc.addObject("PartDesign::Pad", "Pad021")
body30.addObject(pad22)
pad22.Profile = sketch22
pad22.Length = 40
body31 = doc.addObject("PartDesign::Body", "Body030")

# Sketch on XY plane
sketch23 = doc.addObject("Sketcher::SketchObject", "Sketch022")
body31.addObject(sketch23)
sketch23.AttachmentSupport = (doc.getObject("XY_Plane030"), [""])
sketch23.MapMode = "FlatFace"
sketch23.addGeometry(Part.Circle(V(0, 0, 0), V(0, 0, 1), 1.5), False)
sketch23.addConstraint(Sketcher.Constraint("Coincident", 0, 3, -1, 1))
sketch23.addConstraint(Sketcher.Constraint("Diameter", 0, Q("3 mm")))
pad23 = doc.addObject("PartDesign::Pad", "Pad022")
body31.addObject(pad23)
pad23.Profile = sketch23
pad23.Length = 40
body32 = doc.addObject("PartDesign::Body", "Body031")
doc.recompute()

body31.Placement = App.Placement(V(-29.698485, -29.698485, 33.5), App.Rotation(V(0, 0, -1), 45))
boolean22 = doc.addObject("PartDesign::Boolean", "Boolean021")
body32.addObject(boolean22)
boolean22.Type = "Fuse"
boolean22.addObjects([body31])
body33 = doc.addObject("PartDesign::Body", "Body032")
body33.AllowCompound = True

# Sketch on XY plane
sketch24 = doc.addObject("Sketcher::SketchObject", "Sketch023")
body33.addObject(sketch24)
sketch24.AttachmentSupport = (doc.getObject("XY_Plane032"), [""])
sketch24.MapMode = "FlatFace"
sketch24.AttachmentOffset = App.Placement(V(0, 0, 33.5), App.Rotation())
sketch24.addGeometry(Part.Circle(V(0, -42, 0), V(0, 0, 1), 1.5), False)
sketch24.addConstraint(Sketcher.Constraint("PointOnObject", 0, 3, -2))
sketch24.addConstraint(Sketcher.Constraint("Diameter", 0, Q("3 mm")))
sketch24.addConstraint(Sketcher.Constraint("DistanceY", 0, 3, -1, 1, Q("42 mm")))
pad24 = doc.addObject("PartDesign::Pad", "Pad023")
body33.addObject(pad24)
pad24.Profile = sketch24
pad24.Length = 40
doc.recompute()

boolean23 = doc.addObject("PartDesign::Boolean", "Boolean022")
body33.addObject(boolean23)
boolean23.Type = "Fuse"
boolean23.addObjects([body23])
doc.recompute()

boolean24 = doc.addObject("PartDesign::Boolean", "Boolean023")
body33.addObject(boolean24)
boolean24.Type = "Fuse"
boolean24.addObjects([body24])
doc.recompute()

boolean25 = doc.addObject("PartDesign::Boolean", "Boolean024")
body33.addObject(boolean25)
boolean25.Type = "Fuse"
boolean25.addObjects([body26])
doc.recompute()

boolean26 = doc.addObject("PartDesign::Boolean", "Boolean025")
body33.addObject(boolean26)
boolean26.Type = "Fuse"
boolean26.addObjects([body27])
doc.recompute()

boolean27 = doc.addObject("PartDesign::Boolean", "Boolean026")
body33.addObject(boolean27)
boolean27.Type = "Fuse"
boolean27.addObjects([body29])
doc.recompute()

boolean28 = doc.addObject("PartDesign::Boolean", "Boolean027")
body33.addObject(boolean28)
boolean28.Type = "Fuse"
boolean28.addObjects([body30])
doc.recompute()

boolean29 = doc.addObject("PartDesign::Boolean", "Boolean028")
body33.addObject(boolean29)
boolean29.Type = "Fuse"
boolean29.addObjects([body32])
body34 = doc.addObject("PartDesign::Body", "Body033")
body34.AllowCompound = True
doc.recompute()

body33.Placement = App.Placement(V(0, 0, 0), App.Rotation(V(0, 0, 1), 22.5))
boolean30 = doc.addObject("PartDesign::Boolean", "Boolean029")
body34.addObject(boolean30)
boolean30.Type = "Fuse"
boolean30.addObjects([body33])
body35 = doc.addObject("PartDesign::Body", "Body034")

# Sketch on XY plane
sketch25 = doc.addObject("Sketcher::SketchObject", "Sketch024")
body35.addObject(sketch25)
sketch25.AttachmentSupport = (doc.getObject("XY_Plane034"), [""])
sketch25.MapMode = "FlatFace"
sketch25.AttachmentOffset = App.Placement(V(0, 0, 8), App.Rotation())
sketch25.addGeometry(Part.LineSegment(V(-45, 228, 0), V(-45, 28, 0)), False)
sketch25.addGeometry(Part.LineSegment(V(-45, 28, 0), V(-25, 28, 0)), False)
sketch25.addGeometry(Part.LineSegment(V(-25, 28, 0), V(-25, 228, 0)), False)
sketch25.addGeometry(Part.LineSegment(V(-25, 228, 0), V(-45, 228, 0)), False)
sketch25.addConstraint(Sketcher.Constraint("Coincident", 0, 2, 1, 1))
sketch25.addConstraint(Sketcher.Constraint("Coincident", 1, 2, 2, 1))
sketch25.addConstraint(Sketcher.Constraint("Coincident", 2, 2, 3, 1))
sketch25.addConstraint(Sketcher.Constraint("Coincident", 3, 2, 0, 1))
sketch25.addConstraint(Sketcher.Constraint("Vertical", 0))
sketch25.addConstraint(Sketcher.Constraint("Horizontal", 1))
sketch25.addConstraint(Sketcher.Constraint("Vertical", 2))
sketch25.addConstraint(Sketcher.Constraint("Horizontal", 3))
sketch25.addConstraint(Sketcher.Constraint("DistanceX", 1, 1, 1, 2, Q("20 mm")))
sketch25.addConstraint(Sketcher.Constraint("DistanceY", 0, 2, 0, 1, Q("200 mm")))
sketch25.addConstraint(Sketcher.Constraint("DistanceX", 0, 2, -1, 1, Q("45 mm")))
sketch25.addConstraint(Sketcher.Constraint("DistanceY", -1, 1, 0, 2, Q("28 mm")))
pad25 = doc.addObject("PartDesign::Pad", "Pad024")
body35.addObject(pad25)
pad25.Profile = sketch25
pad25.Length = 20
body36 = doc.addObject("PartDesign::Body", "Body035")
body36.AllowCompound = True

# Sketch on XY plane
sketch26 = doc.addObject("Sketcher::SketchObject", "Sketch025")
body36.addObject(sketch26)
sketch26.AttachmentSupport = (doc.getObject("XY_Plane035"), [""])
sketch26.MapMode = "FlatFace"
sketch26.AttachmentOffset = App.Placement(V(0, 0, 8), App.Rotation())
sketch26.addGeometry(Part.LineSegment(V(25, 228, 0), V(25, 28, 0)), False)
sketch26.addGeometry(Part.LineSegment(V(25, 28, 0), V(45, 28, 0)), False)
sketch26.addGeometry(Part.LineSegment(V(45, 28, 0), V(45, 228, 0)), False)
sketch26.addGeometry(Part.LineSegment(V(45, 228, 0), V(25, 228, 0)), False)
sketch26.addConstraint(Sketcher.Constraint("Coincident", 0, 2, 1, 1))
sketch26.addConstraint(Sketcher.Constraint("Coincident", 1, 2, 2, 1))
sketch26.addConstraint(Sketcher.Constraint("Coincident", 2, 2, 3, 1))
sketch26.addConstraint(Sketcher.Constraint("Coincident", 3, 2, 0, 1))
sketch26.addConstraint(Sketcher.Constraint("Vertical", 0))
sketch26.addConstraint(Sketcher.Constraint("Horizontal", 1))
sketch26.addConstraint(Sketcher.Constraint("Vertical", 2))
sketch26.addConstraint(Sketcher.Constraint("Horizontal", 3))
sketch26.addConstraint(Sketcher.Constraint("DistanceX", 1, 1, 1, 2, Q("20 mm")))
sketch26.addConstraint(Sketcher.Constraint("DistanceY", 0, 2, 0, 1, Q("200 mm")))
sketch26.addConstraint(Sketcher.Constraint("DistanceX", -1, 1, 0, 2, Q("25 mm")))
sketch26.addConstraint(Sketcher.Constraint("DistanceY", -1, 1, 0, 2, Q("28 mm")))
pad26 = doc.addObject("PartDesign::Pad", "Pad025")
body36.addObject(pad26)
pad26.Profile = sketch26
pad26.Length = 20
doc.recompute()

boolean31 = doc.addObject("PartDesign::Boolean", "Boolean030")
body36.addObject(boolean31)
boolean31.Type = "Fuse"
boolean31.addObjects([body35])
body37 = doc.addObject("PartDesign::Body", "Body036")
body37.AllowCompound = True
doc.recompute()

body36.Placement = App.Placement(V(0, 2, 32), App.Rotation(V(0, 0, 1), 0))
boolean32 = doc.addObject("PartDesign::Boolean", "Boolean031")
body37.addObject(boolean32)
boolean32.Type = "Fuse"
boolean32.addObjects([body36])
body38 = doc.addObject("PartDesign::Body", "Body037")

# Sketch on XY plane
sketch27 = doc.addObject("Sketcher::SketchObject", "Sketch026")
body38.addObject(sketch27)
sketch27.AttachmentSupport = (doc.getObject("XY_Plane037"), [""])
sketch27.MapMode = "FlatFace"
sketch27.AttachmentOffset = App.Placement(V(0, 0, 37), App.Rotation())
sketch27.addGeometry(Part.Circle(V(0, 0, 0), V(0, 0, 1), 54), False)
sketch27.addGeometry(Part.Circle(V(0, 0, 0), V(0, 0, 1), 37), False)
sketch27.addConstraint(Sketcher.Constraint("Coincident", 0, 3, -1, 1))
sketch27.addConstraint(Sketcher.Constraint("Coincident", 1, 3, -1, 1))
sketch27.addConstraint(Sketcher.Constraint("Diameter", 0, Q("108 mm")))
sketch27.addConstraint(Sketcher.Constraint("Diameter", 1, Q("74 mm")))
pad27 = doc.addObject("PartDesign::Pad", "Pad026")
body38.addObject(pad27)
pad27.Profile = sketch27
pad27.Length = 23
doc.recompute()

boolean33 = doc.addObject("PartDesign::Boolean", "Boolean032")
body38.addObject(boolean33)
boolean33.Type = "Cut"
boolean33.addObjects([body37])
doc.recompute()

boolean34 = doc.addObject("PartDesign::Boolean", "Boolean033")
body38.addObject(boolean34)
boolean34.Type = "Cut"
boolean34.addObjects([body34])
doc.recompute()

boolean35 = doc.addObject("PartDesign::Boolean", "Boolean034")
body38.addObject(boolean35)
boolean35.Type = "Cut"
boolean35.addObjects([body21])
doc.recompute()

boolean36 = doc.addObject("PartDesign::Boolean", "Boolean035")
body38.addObject(boolean36)
boolean36.Type = "Cut"
boolean36.addObjects([body8])
doc.recompute()

boolean37 = doc.addObject("PartDesign::Boolean", "Boolean036")
body38.addObject(boolean37)
boolean37.Type = "Cut"
boolean37.addObjects([body4])

doc.recompute()
